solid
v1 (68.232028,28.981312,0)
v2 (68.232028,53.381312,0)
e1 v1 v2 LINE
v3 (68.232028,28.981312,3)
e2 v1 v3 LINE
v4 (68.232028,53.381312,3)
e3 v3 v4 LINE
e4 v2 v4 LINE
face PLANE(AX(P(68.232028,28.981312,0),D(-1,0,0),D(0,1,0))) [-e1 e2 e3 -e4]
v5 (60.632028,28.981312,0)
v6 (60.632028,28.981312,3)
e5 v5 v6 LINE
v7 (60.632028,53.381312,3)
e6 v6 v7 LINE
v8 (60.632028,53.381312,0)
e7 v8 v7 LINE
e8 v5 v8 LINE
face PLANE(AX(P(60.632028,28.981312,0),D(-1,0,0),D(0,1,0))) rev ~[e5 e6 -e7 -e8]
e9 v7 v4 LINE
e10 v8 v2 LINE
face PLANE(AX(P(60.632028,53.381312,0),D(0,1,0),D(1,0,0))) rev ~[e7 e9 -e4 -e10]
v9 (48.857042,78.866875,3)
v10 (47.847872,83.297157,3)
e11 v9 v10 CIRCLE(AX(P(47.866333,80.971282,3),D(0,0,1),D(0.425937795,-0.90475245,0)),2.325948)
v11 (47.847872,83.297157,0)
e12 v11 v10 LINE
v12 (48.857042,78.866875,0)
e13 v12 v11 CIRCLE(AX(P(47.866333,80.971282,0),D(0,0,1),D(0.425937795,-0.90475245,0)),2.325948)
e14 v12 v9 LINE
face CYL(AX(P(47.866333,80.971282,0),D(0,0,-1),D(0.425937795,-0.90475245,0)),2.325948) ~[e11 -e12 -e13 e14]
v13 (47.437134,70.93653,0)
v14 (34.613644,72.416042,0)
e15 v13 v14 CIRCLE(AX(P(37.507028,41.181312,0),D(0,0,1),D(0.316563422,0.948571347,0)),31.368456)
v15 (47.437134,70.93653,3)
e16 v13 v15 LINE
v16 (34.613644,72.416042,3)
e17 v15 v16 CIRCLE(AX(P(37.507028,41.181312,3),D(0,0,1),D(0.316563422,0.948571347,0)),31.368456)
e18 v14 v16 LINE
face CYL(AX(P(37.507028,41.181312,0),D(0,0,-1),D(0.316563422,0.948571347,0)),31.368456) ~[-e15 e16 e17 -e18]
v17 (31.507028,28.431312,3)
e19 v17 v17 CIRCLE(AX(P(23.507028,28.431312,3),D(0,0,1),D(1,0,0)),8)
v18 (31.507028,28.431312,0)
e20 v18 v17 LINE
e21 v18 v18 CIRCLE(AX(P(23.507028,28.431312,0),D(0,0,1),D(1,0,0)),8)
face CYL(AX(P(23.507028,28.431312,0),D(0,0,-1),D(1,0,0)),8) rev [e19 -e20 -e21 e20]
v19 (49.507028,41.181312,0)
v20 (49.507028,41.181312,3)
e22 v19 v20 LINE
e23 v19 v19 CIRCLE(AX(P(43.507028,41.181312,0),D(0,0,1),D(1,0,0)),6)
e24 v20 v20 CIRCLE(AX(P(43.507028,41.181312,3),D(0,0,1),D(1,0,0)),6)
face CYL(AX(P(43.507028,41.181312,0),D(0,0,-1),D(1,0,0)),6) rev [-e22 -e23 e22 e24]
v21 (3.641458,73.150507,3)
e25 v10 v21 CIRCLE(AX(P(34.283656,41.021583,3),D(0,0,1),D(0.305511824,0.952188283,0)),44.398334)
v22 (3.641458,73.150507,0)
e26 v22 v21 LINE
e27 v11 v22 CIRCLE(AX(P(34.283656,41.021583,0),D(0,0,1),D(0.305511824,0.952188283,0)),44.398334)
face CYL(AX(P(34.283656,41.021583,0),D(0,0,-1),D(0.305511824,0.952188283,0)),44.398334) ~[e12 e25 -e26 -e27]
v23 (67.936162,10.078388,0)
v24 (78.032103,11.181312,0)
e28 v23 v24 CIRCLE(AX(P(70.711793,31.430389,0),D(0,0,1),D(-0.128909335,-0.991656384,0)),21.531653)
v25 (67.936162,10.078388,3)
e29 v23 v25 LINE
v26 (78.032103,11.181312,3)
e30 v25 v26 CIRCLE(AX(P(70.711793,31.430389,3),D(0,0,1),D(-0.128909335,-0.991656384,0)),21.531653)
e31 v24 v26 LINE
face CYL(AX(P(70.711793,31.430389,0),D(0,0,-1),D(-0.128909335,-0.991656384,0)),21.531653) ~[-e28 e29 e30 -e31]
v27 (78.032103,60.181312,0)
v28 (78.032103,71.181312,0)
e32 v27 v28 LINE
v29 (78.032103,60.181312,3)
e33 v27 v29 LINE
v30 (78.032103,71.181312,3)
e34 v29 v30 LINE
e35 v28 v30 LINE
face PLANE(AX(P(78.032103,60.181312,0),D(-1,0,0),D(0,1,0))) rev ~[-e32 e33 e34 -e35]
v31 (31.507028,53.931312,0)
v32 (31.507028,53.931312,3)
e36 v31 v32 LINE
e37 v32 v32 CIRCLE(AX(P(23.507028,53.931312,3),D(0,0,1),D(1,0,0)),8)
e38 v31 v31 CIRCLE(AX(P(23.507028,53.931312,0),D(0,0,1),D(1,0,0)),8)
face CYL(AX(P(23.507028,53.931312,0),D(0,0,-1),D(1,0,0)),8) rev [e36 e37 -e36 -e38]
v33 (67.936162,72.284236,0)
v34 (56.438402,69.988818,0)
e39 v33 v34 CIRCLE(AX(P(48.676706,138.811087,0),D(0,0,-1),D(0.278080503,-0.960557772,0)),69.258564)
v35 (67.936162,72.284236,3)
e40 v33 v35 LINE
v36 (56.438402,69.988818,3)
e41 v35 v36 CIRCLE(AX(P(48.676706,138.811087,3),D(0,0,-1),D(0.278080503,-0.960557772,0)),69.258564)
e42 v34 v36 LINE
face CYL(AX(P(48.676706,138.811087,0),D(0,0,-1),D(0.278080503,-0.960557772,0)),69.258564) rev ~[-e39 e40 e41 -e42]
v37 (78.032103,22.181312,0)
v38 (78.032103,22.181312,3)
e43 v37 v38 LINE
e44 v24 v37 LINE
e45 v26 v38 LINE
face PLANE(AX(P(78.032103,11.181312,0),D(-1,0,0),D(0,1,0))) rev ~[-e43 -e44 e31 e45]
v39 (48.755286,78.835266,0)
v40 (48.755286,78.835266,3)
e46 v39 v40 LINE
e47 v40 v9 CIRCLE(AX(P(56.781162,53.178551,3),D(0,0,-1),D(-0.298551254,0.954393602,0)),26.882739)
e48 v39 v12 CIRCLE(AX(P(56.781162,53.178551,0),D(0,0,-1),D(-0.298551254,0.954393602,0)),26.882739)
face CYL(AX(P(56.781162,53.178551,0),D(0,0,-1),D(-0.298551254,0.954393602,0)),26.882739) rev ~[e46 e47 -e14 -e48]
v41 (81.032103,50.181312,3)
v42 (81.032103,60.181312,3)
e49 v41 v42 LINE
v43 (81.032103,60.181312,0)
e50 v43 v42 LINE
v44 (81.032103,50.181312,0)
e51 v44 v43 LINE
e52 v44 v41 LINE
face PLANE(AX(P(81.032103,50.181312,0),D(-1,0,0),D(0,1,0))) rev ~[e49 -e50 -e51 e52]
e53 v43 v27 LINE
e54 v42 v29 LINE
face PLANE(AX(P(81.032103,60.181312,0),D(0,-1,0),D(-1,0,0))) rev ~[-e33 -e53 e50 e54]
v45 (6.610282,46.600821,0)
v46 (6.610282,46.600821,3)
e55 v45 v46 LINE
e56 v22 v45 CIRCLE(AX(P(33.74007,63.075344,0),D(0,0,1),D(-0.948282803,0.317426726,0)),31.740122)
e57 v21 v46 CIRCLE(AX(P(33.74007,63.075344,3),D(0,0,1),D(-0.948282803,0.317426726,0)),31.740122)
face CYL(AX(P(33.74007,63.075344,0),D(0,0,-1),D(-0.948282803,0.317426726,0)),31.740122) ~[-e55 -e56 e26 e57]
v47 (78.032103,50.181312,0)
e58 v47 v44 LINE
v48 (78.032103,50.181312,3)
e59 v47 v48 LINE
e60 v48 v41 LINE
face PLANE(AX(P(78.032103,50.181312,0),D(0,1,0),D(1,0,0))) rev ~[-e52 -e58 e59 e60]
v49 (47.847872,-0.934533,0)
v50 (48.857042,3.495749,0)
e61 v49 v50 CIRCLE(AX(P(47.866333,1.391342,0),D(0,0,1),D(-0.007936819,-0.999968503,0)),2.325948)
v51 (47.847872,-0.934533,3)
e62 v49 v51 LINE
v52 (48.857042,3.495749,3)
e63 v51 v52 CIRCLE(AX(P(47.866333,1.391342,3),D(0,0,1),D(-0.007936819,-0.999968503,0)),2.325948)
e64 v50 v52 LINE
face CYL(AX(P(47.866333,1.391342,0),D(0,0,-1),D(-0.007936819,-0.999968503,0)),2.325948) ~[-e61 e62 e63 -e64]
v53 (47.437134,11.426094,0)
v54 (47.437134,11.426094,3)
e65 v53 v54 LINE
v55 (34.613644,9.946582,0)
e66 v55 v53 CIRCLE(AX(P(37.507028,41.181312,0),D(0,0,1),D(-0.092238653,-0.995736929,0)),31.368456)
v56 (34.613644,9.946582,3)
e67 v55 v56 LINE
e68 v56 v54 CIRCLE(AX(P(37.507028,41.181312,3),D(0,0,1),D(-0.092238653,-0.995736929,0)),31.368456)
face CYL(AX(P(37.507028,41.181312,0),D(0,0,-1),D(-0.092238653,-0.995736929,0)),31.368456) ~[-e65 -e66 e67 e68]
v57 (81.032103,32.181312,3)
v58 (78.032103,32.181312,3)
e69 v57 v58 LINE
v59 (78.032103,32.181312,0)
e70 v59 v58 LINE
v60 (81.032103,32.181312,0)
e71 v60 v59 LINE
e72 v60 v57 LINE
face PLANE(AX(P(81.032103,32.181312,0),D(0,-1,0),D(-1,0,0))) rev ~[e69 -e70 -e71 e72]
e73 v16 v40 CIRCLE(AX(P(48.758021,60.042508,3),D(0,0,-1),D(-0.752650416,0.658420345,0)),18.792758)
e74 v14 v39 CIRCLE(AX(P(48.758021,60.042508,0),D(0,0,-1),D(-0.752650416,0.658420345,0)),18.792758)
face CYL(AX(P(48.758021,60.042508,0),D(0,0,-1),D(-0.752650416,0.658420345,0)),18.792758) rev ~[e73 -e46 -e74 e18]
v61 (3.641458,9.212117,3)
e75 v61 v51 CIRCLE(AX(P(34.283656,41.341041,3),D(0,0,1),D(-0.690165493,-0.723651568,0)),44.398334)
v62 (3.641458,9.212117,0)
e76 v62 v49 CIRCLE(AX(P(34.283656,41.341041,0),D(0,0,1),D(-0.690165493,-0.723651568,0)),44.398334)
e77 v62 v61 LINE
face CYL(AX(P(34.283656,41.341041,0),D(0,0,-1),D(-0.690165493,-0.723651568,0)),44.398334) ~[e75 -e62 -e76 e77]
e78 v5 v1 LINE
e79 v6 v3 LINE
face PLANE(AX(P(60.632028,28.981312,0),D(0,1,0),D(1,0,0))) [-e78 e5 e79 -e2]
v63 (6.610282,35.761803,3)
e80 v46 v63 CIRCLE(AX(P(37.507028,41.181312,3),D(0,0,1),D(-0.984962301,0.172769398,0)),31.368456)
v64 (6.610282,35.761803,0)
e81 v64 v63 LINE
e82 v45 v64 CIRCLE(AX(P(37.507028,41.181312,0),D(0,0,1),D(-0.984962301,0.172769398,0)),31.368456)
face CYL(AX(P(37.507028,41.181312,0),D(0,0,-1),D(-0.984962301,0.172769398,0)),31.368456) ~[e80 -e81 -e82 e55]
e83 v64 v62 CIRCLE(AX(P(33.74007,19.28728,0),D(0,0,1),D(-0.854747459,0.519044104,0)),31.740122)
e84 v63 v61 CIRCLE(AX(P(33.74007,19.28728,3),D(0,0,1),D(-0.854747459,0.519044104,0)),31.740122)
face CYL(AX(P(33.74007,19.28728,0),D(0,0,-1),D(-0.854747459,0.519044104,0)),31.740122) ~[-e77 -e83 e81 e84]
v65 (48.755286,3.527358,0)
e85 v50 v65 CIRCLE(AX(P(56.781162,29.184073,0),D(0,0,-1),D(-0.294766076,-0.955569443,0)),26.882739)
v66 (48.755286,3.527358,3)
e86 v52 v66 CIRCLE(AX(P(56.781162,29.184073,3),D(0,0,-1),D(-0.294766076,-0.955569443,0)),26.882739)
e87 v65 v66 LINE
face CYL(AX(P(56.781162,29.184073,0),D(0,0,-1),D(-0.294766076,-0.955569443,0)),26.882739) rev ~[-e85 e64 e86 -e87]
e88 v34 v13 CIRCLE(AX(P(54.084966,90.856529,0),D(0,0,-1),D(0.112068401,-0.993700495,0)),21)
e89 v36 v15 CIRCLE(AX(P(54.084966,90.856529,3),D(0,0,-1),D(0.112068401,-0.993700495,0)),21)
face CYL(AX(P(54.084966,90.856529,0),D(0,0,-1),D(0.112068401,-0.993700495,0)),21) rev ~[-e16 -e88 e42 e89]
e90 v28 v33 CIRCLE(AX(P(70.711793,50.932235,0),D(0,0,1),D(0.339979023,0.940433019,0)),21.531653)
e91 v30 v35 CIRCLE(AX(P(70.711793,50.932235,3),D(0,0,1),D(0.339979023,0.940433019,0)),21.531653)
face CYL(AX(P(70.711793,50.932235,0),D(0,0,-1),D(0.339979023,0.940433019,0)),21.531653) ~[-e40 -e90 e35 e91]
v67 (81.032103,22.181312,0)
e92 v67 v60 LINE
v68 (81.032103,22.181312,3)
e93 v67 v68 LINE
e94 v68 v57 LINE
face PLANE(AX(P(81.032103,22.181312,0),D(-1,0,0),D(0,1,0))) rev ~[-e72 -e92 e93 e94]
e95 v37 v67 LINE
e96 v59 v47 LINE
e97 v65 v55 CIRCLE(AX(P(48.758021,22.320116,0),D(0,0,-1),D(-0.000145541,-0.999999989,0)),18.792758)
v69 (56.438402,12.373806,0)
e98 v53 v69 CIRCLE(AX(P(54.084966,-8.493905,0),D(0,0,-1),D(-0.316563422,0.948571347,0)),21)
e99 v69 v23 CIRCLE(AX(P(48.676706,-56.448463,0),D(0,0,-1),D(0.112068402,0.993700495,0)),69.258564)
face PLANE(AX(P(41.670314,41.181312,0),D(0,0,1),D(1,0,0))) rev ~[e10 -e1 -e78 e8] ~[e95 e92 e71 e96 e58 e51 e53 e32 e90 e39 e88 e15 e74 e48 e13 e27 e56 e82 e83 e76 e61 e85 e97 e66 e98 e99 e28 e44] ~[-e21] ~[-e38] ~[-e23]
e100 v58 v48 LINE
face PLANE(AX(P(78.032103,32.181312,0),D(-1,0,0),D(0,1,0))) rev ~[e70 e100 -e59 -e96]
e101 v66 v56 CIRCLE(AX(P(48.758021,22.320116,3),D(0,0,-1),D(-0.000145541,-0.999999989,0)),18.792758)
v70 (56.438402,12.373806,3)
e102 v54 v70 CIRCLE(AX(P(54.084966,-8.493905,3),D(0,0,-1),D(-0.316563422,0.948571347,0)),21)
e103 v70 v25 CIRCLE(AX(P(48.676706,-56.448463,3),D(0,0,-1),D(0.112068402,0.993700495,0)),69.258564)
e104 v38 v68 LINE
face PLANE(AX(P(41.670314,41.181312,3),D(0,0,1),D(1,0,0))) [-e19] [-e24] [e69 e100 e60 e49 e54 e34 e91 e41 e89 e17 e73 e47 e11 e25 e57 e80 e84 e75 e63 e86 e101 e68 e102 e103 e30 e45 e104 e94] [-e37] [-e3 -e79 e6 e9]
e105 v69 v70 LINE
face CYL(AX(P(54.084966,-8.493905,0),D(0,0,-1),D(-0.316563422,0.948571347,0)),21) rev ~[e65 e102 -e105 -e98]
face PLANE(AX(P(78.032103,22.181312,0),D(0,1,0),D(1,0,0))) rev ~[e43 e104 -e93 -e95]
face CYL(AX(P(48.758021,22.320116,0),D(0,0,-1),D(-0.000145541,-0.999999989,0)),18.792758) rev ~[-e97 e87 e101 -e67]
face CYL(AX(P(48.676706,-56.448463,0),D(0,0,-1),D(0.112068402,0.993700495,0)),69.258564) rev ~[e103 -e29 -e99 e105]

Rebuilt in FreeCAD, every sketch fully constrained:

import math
import FreeCAD as App
import Part
import Sketcher


def add_polygon(sketch, points):
    """Adds a closed chain of lines whose ends are joined by coincident constraints."""
    first, n = sketch.GeometryCount, len(points)
    for a, b in zip(points, points[1:] + points[:1]):
        sketch.addGeometry(Part.LineSegment(App.Vector(*a, 0), App.Vector(*b, 0)), False)
    for i in range(n):
        sketch.addConstraint(Sketcher.Constraint("Coincident", first + i, 2, first + (i + 1) % n, 1))

doc = App.newDocument("Part")
body = doc.addObject("PartDesign::Body", "Body")

# Sketch on XY plane
sketch1 = body.newObject("Sketcher::SketchObject", "Sketch")
sketch1.AttachmentSupport = (doc.getObject("XY_Plane"), [""])
sketch1.MapMode = "FlatFace"
sketch1.addGeometry(Part.LineSegment(App.Vector(81.032103, 50.181312, 0), App.Vector(81.032103, 60.181312, 0)), False)  # 0
sketch1.addGeometry(Part.LineSegment(App.Vector(81.032103, 60.181312, 0), App.Vector(78.032103, 60.181312, 0)), False)  # 1
sketch1.addGeometry(Part.LineSegment(App.Vector(78.032103, 60.181312, 0), App.Vector(78.032103, 71.181312, 0)), False)  # 2
sketch1.addGeometry(Part.ArcOfCircle(Part.Circle(App.Vector(70.711793, 50.932235, 0), App.Vector(0, 0, 1), 21.531653), math.radians(70.124404), math.radians(97.406572)), False)  # 3
sketch1.addGeometry(Part.ArcOfCircle(Part.Circle(App.Vector(48.676706, 138.811087, 0), App.Vector(0, 0, 1), 69.258564), math.radians(-83.565436), math.radians(-73.854323)), False)  # 4
sketch1.addGeometry(Part.ArcOfCircle(Part.Circle(App.Vector(54.084966, 90.856529, 0), App.Vector(0, 0, 1), 21), math.radians(-108.455222), math.radians(-83.565436)), False)  # 5
sketch1.addGeometry(Part.ArcOfCircle(Part.Circle(App.Vector(37.507028, 41.181312, 0), App.Vector(0, 0, 1), 31.368456), math.radians(71.544778), math.radians(95.292408)), False)  # 6
sketch1.addGeometry(Part.ArcOfCircle(Part.Circle(App.Vector(48.758021, 60.042508, 0), App.Vector(0, 0, 1), 18.792758), math.radians(90.008339), math.radians(138.82049)), False)  # 7
sketch1.addGeometry(Part.ArcOfCircle(Part.Circle(App.Vector(56.781162, 53.178551, 0), App.Vector(0, 0, 1), 26.882739), math.radians(107.143511), math.radians(107.370609)), False)  # 8
sketch1.addGeometry(Part.ArcOfCircle(Part.Circle(App.Vector(47.866333, 80.971282, 0), App.Vector(0, 0, 1), 2.325948), math.radians(-64.789963), math.radians(90.454751)), False)  # 9
sketch1.addGeometry(Part.ArcOfCircle(Part.Circle(App.Vector(34.283656, 41.021583, 0), App.Vector(0, 0, 1), 44.398334), math.radians(72.211041), math.radians(133.643211)), False)  # 10
sketch1.addGeometry(Part.ArcOfCircle(Part.Circle(App.Vector(33.74007, 63.075344, 0), App.Vector(0, 0, 1), 31.740122), math.radians(161.492625), math.radians(211.268154)), False)  # 11
sketch1.addGeometry(Part.ArcOfCircle(Part.Circle(App.Vector(37.507028, 41.181312, 0), App.Vector(0, 0, 1), 31.368456), math.radians(170.051123), math.radians(189.948877)), False)  # 12
sketch1.addGeometry(Part.ArcOfCircle(Part.Circle(App.Vector(33.74007, 19.28728, 0), App.Vector(0, 0, 1), 31.740122), math.radians(148.731846), math.radians(198.507375)), False)  # 13
sketch1.addGeometry(Part.ArcOfCircle(Part.Circle(App.Vector(34.283656, 41.341041, 0), App.Vector(0, 0, 1), 44.398334), math.radians(-133.643211), math.radians(-72.211041)), False)  # 14
sketch1.addGeometry(Part.ArcOfCircle(Part.Circle(App.Vector(47.866333, 1.391342, 0), App.Vector(0, 0, 1), 2.325948), math.radians(-90.454751), math.radians(64.789963)), False)  # 15
sketch1.addGeometry(Part.ArcOfCircle(Part.Circle(App.Vector(56.781162, 29.184073, 0), App.Vector(0, 0, 1), 26.882739), math.radians(-107.370609), math.radians(-107.143511)), False)  # 16
sketch1.addGeometry(Part.ArcOfCircle(Part.Circle(App.Vector(48.758021, 22.320116, 0), App.Vector(0, 0, 1), 18.792758), math.radians(-138.82049), math.radians(-90.008339)), False)  # 17
sketch1.addGeometry(Part.ArcOfCircle(Part.Circle(App.Vector(37.507028, 41.181312, 0), App.Vector(0, 0, 1), 31.368456), math.radians(-95.292408), math.radians(-71.544778)), False)  # 18
sketch1.addGeometry(Part.ArcOfCircle(Part.Circle(App.Vector(54.084966, -8.493905, 0), App.Vector(0, 0, 1), 21), math.radians(83.565436), math.radians(108.455222)), False)  # 19
sketch1.addGeometry(Part.ArcOfCircle(Part.Circle(App.Vector(48.676706, -56.448463, 0), App.Vector(0, 0, 1), 69.258564), math.radians(73.854323), math.radians(83.565436)), False)  # 20
sketch1.addGeometry(Part.ArcOfCircle(Part.Circle(App.Vector(70.711793, 31.430389, 0), App.Vector(0, 0, 1), 21.531653), math.radians(-97.406572), math.radians(-70.124404)), False)  # 21
sketch1.addGeometry(Part.LineSegment(App.Vector(78.032103, 11.181312, 0), App.Vector(78.032103, 22.181312, 0)), False)  # 22
sketch1.addGeometry(Part.LineSegment(App.Vector(78.032103, 22.181312, 0), App.Vector(81.032103, 22.181312, 0)), False)  # 23
sketch1.addGeometry(Part.LineSegment(App.Vector(81.032103, 22.181312, 0), App.Vector(81.032103, 32.181312, 0)), False)  # 24
sketch1.addGeometry(Part.LineSegment(App.Vector(81.032103, 32.181312, 0), App.Vector(78.032103, 32.181312, 0)), False)  # 25
sketch1.addGeometry(Part.LineSegment(App.Vector(78.032103, 32.181312, 0), App.Vector(78.032103, 50.181312, 0)), False)  # 26
sketch1.addGeometry(Part.LineSegment(App.Vector(78.032103, 50.181312, 0), App.Vector(81.032103, 50.181312, 0)), False)  # 27
sketch1.addGeometry(Part.Circle(App.Vector(23.507028, 28.431312, 0), App.Vector(0, 0, 1), 8), False)  # 28
sketch1.addGeometry(Part.Circle(App.Vector(23.507028, 53.931312, 0), App.Vector(0, 0, 1), 8), False)  # 29
sketch1.addGeometry(Part.Circle(App.Vector(43.507028, 41.181312, 0), App.Vector(0, 0, 1), 6), False)  # 30
add_polygon(sketch1, [(68.232028, 28.981312), (60.632028, 28.981312), (60.632028, 53.381312), (68.232028, 53.381312)])  # lines 31-34
sketch1.addConstraint(Sketcher.Constraint("Coincident", 0, 2, 1, 1))
sketch1.addConstraint(Sketcher.Constraint("Coincident", 1, 2, 2, 1))
sketch1.addConstraint(Sketcher.Constraint("Coincident", 2, 2, 3, 1))
sketch1.addConstraint(Sketcher.Constraint("Coincident", 3, 2, 4, 2))
sketch1.addConstraint(Sketcher.Constraint("Tangent", 4, 1, 5, 2))
sketch1.addConstraint(Sketcher.Constraint("Tangent", 5, 1, 6, 1))
sketch1.addConstraint(Sketcher.Constraint("Coincident", 6, 2, 7, 2))
sketch1.addConstraint(Sketcher.Constraint("Coincident", 7, 1, 8, 2))
sketch1.addConstraint(Sketcher.Constraint("Coincident", 8, 1, 9, 1))
sketch1.addConstraint(Sketcher.Constraint("Coincident", 9, 2, 10, 1))
sketch1.addConstraint(Sketcher.Constraint("Coincident", 10, 2, 11, 1))
sketch1.addConstraint(Sketcher.Constraint("Coincident", 11, 2, 12, 1))
sketch1.addConstraint(Sketcher.Constraint("Coincident", 12, 2, 13, 1))
sketch1.addConstraint(Sketcher.Constraint("Coincident", 13, 2, 14, 1))
sketch1.addConstraint(Sketcher.Constraint("Coincident", 14, 2, 15, 1))
sketch1.addConstraint(Sketcher.Constraint("Coincident", 15, 2, 16, 2))
sketch1.addConstraint(Sketcher.Constraint("Coincident", 16, 1, 17, 2))
sketch1.addConstraint(Sketcher.Constraint("Coincident", 17, 1, 18, 1))
sketch1.addConstraint(Sketcher.Constraint("Tangent", 18, 2, 19, 2))
sketch1.addConstraint(Sketcher.Constraint("Tangent", 19, 1, 20, 2))
sketch1.addConstraint(Sketcher.Constraint("Coincident", 20, 1, 21, 1))
sketch1.addConstraint(Sketcher.Constraint("Coincident", 21, 2, 22, 1))
sketch1.addConstraint(Sketcher.Constraint("Coincident", 22, 2, 23, 1))
sketch1.addConstraint(Sketcher.Constraint("Coincident", 23, 2, 24, 1))
sketch1.addConstraint(Sketcher.Constraint("Coincident", 24, 2, 25, 1))
sketch1.addConstraint(Sketcher.Constraint("Coincident", 25, 2, 26, 1))
sketch1.addConstraint(Sketcher.Constraint("Coincident", 26, 2, 27, 1))
sketch1.addConstraint(Sketcher.Constraint("Coincident", 27, 2, 0, 1))
sketch1.addConstraint(Sketcher.Constraint("Vertical", 0))
sketch1.addConstraint(Sketcher.Constraint("Horizontal", 1))
sketch1.addConstraint(Sketcher.Constraint("Vertical", 2))
sketch1.addConstraint(Sketcher.Constraint("Vertical", 22))
sketch1.addConstraint(Sketcher.Constraint("Horizontal", 23))
sketch1.addConstraint(Sketcher.Constraint("Vertical", 24))
sketch1.addConstraint(Sketcher.Constraint("Horizontal", 25))
sketch1.addConstraint(Sketcher.Constraint("Vertical", 26))
sketch1.addConstraint(Sketcher.Constraint("Horizontal", 27))
sketch1.addConstraint(Sketcher.Constraint("Horizontal", 31))
sketch1.addConstraint(Sketcher.Constraint("Vertical", 32))
sketch1.addConstraint(Sketcher.Constraint("Horizontal", 33))
sketch1.addConstraint(Sketcher.Constraint("Vertical", 34))
sketch1.addConstraint(Sketcher.Constraint("Coincident", 12, 3, 6, 3))
sketch1.addConstraint(Sketcher.Constraint("Coincident", 18, 3, 6, 3))
sketch1.addConstraint(Sketcher.Constraint("Equal", 6, 12))
sketch1.addConstraint(Sketcher.Constraint("Equal", 11, 13))
sketch1.addConstraint(Sketcher.Constraint("Equal", 10, 14))
sketch1.addConstraint(Sketcher.Constraint("Equal", 9, 15))
sketch1.addConstraint(Sketcher.Constraint("Equal", 8, 16))
sketch1.addConstraint(Sketcher.Constraint("Equal", 7, 17))
sketch1.addConstraint(Sketcher.Constraint("Equal", 12, 18))
sketch1.addConstraint(Sketcher.Constraint("Equal", 5, 19))
sketch1.addConstraint(Sketcher.Constraint("Equal", 4, 20))
sketch1.addConstraint(Sketcher.Constraint("Equal", 3, 21))
sketch1.addConstraint(Sketcher.Constraint("Equal", 28, 29))
sketch1.addConstraint(Sketcher.Constraint("Horizontal", 18, 3, 30, 3))
sketch1.addConstraint(Sketcher.Constraint("Vertical", 11, 3, 13, 3))
sketch1.addConstraint(Sketcher.Constraint("Vertical", 10, 3, 14, 3))
sketch1.addConstraint(Sketcher.Constraint("Vertical", 9, 3, 15, 3))
sketch1.addConstraint(Sketcher.Constraint("Vertical", 8, 3, 16, 3))
sketch1.addConstraint(Sketcher.Constraint("Vertical", 7, 3, 17, 3))
sketch1.addConstraint(Sketcher.Constraint("Vertical", 5, 3, 19, 3))
sketch1.addConstraint(Sketcher.Constraint("Vertical", 4, 3, 20, 3))
sketch1.addConstraint(Sketcher.Constraint("Vertical", 3, 3, 21, 3))
sketch1.addConstraint(Sketcher.Constraint("Vertical", 28, 3, 29, 3))
sketch1.addConstraint(Sketcher.Constraint("Vertical", 11, 2, 12, 2))
sketch1.addConstraint(Sketcher.Constraint("Vertical", 10, 2, 13, 2))
sketch1.addConstraint(Sketcher.Constraint("Vertical", 9, 2, 14, 2))
sketch1.addConstraint(Sketcher.Constraint("Vertical", 8, 1, 15, 2))
sketch1.addConstraint(Sketcher.Constraint("Vertical", 7, 1, 16, 1))
sketch1.addConstraint(Sketcher.Constraint("Vertical", 3, 2, 20, 1))
sketch1.addConstraint(Sketcher.Constraint("Vertical", 2, 2, 21, 2))
sketch1.addConstraint(Sketcher.Constraint("Vertical", 0, 2, 23, 2))
sketch1.addConstraint(Sketcher.Constraint("Vertical", 22, 2, 25, 2))
sketch1.addConstraint(Sketcher.Constraint("Equal", 2, 22))
sketch1.addConstraint(Sketcher.Constraint("Equal", 0, 24))
sketch1.addConstraint(Sketcher.Constraint("Diameter", 28, 16.0))
sketch1.addConstraint(Sketcher.Constraint("Diameter", 30, 12.0))
sketch1.addConstraint(Sketcher.Constraint("Radius", 5, 21.0))
sketch1.addConstraint(Sketcher.Constraint("DistanceX", 1, 2, 1, 1, 3.0))
sketch1.addConstraint(Sketcher.Constraint("DistanceY", 0, 1, 0, 2, 10.0))
sketch1.addConstraint(Sketcher.Constraint("DistanceY", 2, 1, 2, 2, 11.0))
sketch1.addConstraint(Sketcher.Constraint("DistanceY", 26, 1, 26, 2, 18.0))
sketch1.addConstraint(Sketcher.Constraint("DistanceX", 31, 2, 31, 1, 7.6))
sketch1.addConstraint(Sketcher.Constraint("DistanceY", 32, 1, 32, 2, 24.4))
sketch1.addConstraint(Sketcher.Constraint("DistanceX", 28, 3, 18, 3, 14.0))
sketch1.addConstraint(Sketcher.Constraint("DistanceX", 6, 3, 30, 3, 6.0))
sketch1.addConstraint(Sketcher.Constraint("DistanceY", 31, 2, 25, 2, 3.2))
sketch1.addConstraint(Sketcher.Constraint("Radius", 7, 18.792758))
sketch1.addConstraint(Sketcher.Constraint("Radius", 8, 26.882739))
sketch1.addConstraint(Sketcher.Constraint("Radius", 11, 31.740122))
sketch1.addConstraint(Sketcher.Constraint("DistanceY", 28, 3, 18, 3, 12.75))
sketch1.addConstraint(Sketcher.Constraint("DistanceY", 6, 3, 29, 3, 12.75))
sketch1.addConstraint(Sketcher.Constraint("Radius", 3, 21.531653))
sketch1.addConstraint(Sketcher.Constraint("Radius", 4, 69.258564))
sketch1.addConstraint(Sketcher.Constraint("Radius", 6, 31.368456))
sketch1.addConstraint(Sketcher.Constraint("Radius", 9, 2.325948))
sketch1.addConstraint(Sketcher.Constraint("Radius", 10, 44.398334))
sketch1.addConstraint(Sketcher.Constraint("DistanceY", 3, 3, 3, 2, 21.352001))
sketch1.addConstraint(Sketcher.Constraint("DistanceY", 10, 3, 9, 3, 39.949699))
sketch1.addConstraint(Sketcher.Constraint("DistanceX", 5, 1, 9, 3, 0.429199))
sketch1.addConstraint(Sketcher.Constraint("DistanceX", 10, 2, 14, 3, 30.642198))
sketch1.addConstraint(Sketcher.Constraint("DistanceX", 17, 1, 15, 2, 14.243398))
sketch1.addConstraint(Sketcher.Constraint("DistanceX", 19, 1, 21, 2, 21.593701))
sketch1.addConstraint(Sketcher.Constraint("DistanceY", -1, 1, 5, 3, 90.856529))
sketch1.addConstraint(Sketcher.Constraint("DistanceX", -1, 1, 6, 3, 37.507028))
sketch1.addConstraint(Sketcher.Constraint("DistanceX", -1, 1, 7, 3, 48.758021))
sketch1.addConstraint(Sketcher.Constraint("DistanceX", -1, 1, 8, 3, 56.781162))
sketch1.addConstraint(Sketcher.Constraint("DistanceY", -1, 1, 8, 3, 53.178551))
sketch1.addConstraint(Sketcher.Constraint("DistanceX", -1, 1, 11, 3, 33.74007))
sketch1.addConstraint(Sketcher.Constraint("DistanceY", -1, 1, 12, 3, 41.181312))
sketch1.addConstraint(Sketcher.Constraint("DistanceY", -1, 1, 13, 3, 19.28728))
sketch1.addConstraint(Sketcher.Constraint("DistanceY", -1, 1, 14, 3, 41.341041))
sketch1.addConstraint(Sketcher.Constraint("DistanceY", -1, 1, 21, 3, 31.430389))
sketch1.addConstraint(Sketcher.Constraint("DistanceX", -1, 1, 31, 2, 60.632028))
pad1 = body.newObject("PartDesign::Pad", "Pad")
pad1.Profile = sketch1
pad1.Length = 3

doc.recompute()
